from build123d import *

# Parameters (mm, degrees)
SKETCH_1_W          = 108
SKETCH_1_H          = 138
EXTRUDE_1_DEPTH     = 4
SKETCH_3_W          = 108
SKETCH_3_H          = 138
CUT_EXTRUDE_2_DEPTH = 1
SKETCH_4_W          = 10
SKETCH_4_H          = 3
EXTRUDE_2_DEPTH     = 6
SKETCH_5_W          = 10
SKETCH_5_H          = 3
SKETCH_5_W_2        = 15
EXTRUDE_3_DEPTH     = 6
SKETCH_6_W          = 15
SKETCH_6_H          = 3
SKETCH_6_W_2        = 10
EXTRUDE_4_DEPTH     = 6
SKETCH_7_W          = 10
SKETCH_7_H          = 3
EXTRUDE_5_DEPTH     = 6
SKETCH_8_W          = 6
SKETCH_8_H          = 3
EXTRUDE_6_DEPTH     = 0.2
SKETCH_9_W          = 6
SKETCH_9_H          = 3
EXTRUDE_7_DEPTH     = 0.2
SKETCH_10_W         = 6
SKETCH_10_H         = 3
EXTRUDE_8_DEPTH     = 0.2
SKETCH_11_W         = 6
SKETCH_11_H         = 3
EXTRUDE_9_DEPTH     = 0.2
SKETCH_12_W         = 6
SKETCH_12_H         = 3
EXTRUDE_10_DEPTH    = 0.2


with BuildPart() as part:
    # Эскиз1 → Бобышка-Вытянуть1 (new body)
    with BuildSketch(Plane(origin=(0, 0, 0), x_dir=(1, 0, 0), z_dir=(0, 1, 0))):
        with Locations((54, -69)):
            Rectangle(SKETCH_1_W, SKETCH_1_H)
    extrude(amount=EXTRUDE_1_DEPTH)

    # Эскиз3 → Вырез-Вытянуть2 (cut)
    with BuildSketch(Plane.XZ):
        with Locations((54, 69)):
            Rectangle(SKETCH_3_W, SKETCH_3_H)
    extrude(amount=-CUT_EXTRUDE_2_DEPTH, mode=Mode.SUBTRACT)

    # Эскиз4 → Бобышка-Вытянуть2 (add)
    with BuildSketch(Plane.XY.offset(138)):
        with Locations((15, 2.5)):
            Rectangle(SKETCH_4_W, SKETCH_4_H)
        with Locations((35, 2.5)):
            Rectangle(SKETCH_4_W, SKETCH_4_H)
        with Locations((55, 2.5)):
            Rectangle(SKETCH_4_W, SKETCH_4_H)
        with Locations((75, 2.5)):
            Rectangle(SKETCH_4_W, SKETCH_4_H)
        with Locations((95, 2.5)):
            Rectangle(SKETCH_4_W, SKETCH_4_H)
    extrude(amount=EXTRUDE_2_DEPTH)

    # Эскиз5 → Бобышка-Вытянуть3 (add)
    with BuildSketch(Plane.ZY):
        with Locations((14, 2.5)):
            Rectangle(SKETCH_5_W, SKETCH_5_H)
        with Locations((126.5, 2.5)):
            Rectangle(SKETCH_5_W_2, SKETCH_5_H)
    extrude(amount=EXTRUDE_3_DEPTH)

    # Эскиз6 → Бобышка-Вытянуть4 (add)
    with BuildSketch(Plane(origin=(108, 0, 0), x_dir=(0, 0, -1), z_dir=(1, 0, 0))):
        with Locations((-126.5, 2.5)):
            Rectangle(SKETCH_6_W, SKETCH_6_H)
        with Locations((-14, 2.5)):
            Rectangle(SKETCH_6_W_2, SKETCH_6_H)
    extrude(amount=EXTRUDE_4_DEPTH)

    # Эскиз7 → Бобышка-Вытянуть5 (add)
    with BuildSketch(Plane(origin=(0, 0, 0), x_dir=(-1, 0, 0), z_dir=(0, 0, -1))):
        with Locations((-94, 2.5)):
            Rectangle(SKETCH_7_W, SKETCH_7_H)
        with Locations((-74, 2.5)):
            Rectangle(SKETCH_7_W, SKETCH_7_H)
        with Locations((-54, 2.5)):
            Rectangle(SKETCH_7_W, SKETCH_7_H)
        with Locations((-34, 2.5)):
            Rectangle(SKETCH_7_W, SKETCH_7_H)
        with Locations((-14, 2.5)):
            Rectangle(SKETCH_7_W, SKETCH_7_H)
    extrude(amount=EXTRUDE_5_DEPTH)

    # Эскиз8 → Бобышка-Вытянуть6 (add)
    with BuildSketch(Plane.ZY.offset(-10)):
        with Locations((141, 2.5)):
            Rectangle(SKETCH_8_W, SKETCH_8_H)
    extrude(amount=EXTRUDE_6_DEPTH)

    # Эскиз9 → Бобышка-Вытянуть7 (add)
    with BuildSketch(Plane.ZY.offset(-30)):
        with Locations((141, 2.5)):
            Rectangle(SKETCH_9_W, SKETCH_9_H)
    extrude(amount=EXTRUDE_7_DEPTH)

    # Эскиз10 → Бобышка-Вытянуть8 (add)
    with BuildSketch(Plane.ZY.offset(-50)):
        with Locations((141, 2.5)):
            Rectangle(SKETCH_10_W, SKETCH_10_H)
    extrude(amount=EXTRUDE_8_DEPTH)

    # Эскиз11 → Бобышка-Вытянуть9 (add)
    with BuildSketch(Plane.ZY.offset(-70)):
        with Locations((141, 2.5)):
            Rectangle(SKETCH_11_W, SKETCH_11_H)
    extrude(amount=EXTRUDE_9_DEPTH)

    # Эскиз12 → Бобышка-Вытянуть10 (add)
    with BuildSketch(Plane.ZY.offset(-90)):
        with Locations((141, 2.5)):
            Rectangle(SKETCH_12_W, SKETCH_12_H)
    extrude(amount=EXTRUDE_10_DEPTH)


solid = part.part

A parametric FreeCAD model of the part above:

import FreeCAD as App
import Part
import Sketcher

V = App.Vector
Q = App.Units.Quantity


def add_polygon(sketch, points):
    """Adds a closed chain of lines whose ends are joined by coincident constraints."""
    first, n = sketch.GeometryCount, len(points)
    for a, b in zip(points, points[1:] + points[:1]):
        sketch.addGeometry(Part.LineSegment(App.Vector(*a, 0), App.Vector(*b, 0)), False)
    for i in range(n):
        sketch.addConstraint(Sketcher.Constraint("Coincident", first + i, 2, first + (i + 1) % n, 1))

doc = App.newDocument("Part")
body = doc.addObject("PartDesign::Body", "Body")

sketch1 = body.newObject("Sketcher::SketchObject", "Sketch")
sketch1.AttachmentSupport = (doc.getObject("XZ_Plane"), [""])
sketch1.MapMode = "FlatFace"
add_polygon(sketch1, [(0, 0), (0, 138), (108, 138), (108, 0)])
sketch1.addConstraint([
    Sketcher.Constraint("Vertical", 0),
    Sketcher.Constraint("Horizontal", 1),
    Sketcher.Constraint("Vertical", 2),
    Sketcher.Constraint("Horizontal", 3),
    Sketcher.Constraint("Coincident", 3, 2, -1, 1),
    Sketcher.Constraint("DistanceX", 1, 1, 1, 2, Q("108 mm")),
    Sketcher.Constraint("DistanceY", 0, 1, 0, 2, Q("138 mm")),
])
pad1 = body.newObject("PartDesign::Pad", "Pad")
pad1.Profile = sketch1
pad1.Length = 4
pad1.Reversed = True

sketch2 = body.newObject("Sketcher::SketchObject", "Sketch001")
sketch2.AttachmentSupport = (doc.getObject("XZ_Plane"), [""])
sketch2.MapMode = "FlatFace"
add_polygon(sketch2, [(0, 138), (0, 0), (108, 0), (108, 138)])
sketch2.addConstraint([
    Sketcher.Constraint("Vertical", 0),
    Sketcher.Constraint("Horizontal", 1),
    Sketcher.Constraint("Vertical", 2),
    Sketcher.Constraint("Horizontal", 3),
    Sketcher.Constraint("Coincident", 0, 2, -1, 1),
    Sketcher.Constraint("DistanceX", 1, 1, 1, 2, Q("108 mm")),
    Sketcher.Constraint("DistanceY", 0, 2, 0, 1, Q("138 mm")),
])
pocket1 = body.newObject("PartDesign::Pocket", "Pocket")
pocket1.Profile = sketch2
pocket1.Length = 1

sketch3 = body.newObject("Sketcher::SketchObject", "Sketch002")
sketch3.AttachmentSupport = (doc.getObject("XY_Plane"), [""])
sketch3.MapMode = "FlatFace"
sketch3.AttachmentOffset = App.Placement(V(0, 0, 138), App.Rotation())
add_polygon(sketch3, [(10, 4), (10, 1), (20, 1), (20, 4)])
add_polygon(sketch3, [(30, 4), (30, 1), (40, 1), (40, 4)])
add_polygon(sketch3, [(50, 4), (50, 1), (60, 1), (60, 4)])
add_polygon(sketch3, [(70, 4), (70, 1), (80, 1), (80, 4)])
add_polygon(sketch3, [(90, 4), (90, 1), (100, 1), (100, 4)])
sketch3.addConstraint([
    Sketcher.Constraint("Vertical", 0),
    Sketcher.Constraint("Horizontal", 1),
    Sketcher.Constraint("Vertical", 2),
    Sketcher.Constraint("Horizontal", 3),
    Sketcher.Constraint("Vertical", 4),
    Sketcher.Constraint("Horizontal", 5),
    Sketcher.Constraint("Vertical", 6),
    Sketcher.Constraint("Horizontal", 7),
    Sketcher.Constraint("Vertical", 8),
    Sketcher.Constraint("Horizontal", 9),
    Sketcher.Constraint("Vertical", 10),
    Sketcher.Constraint("Horizontal", 11),
    Sketcher.Constraint("Vertical", 12),
    Sketcher.Constraint("Horizontal", 13),
    Sketcher.Constraint("Vertical", 14),
    Sketcher.Constraint("Horizontal", 15),
    Sketcher.Constraint("Vertical", 16),
    Sketcher.Constraint("Horizontal", 17),
    Sketcher.Constraint("Vertical", 18),
    Sketcher.Constraint("Horizontal", 19),
    Sketcher.Constraint("Horizontal", 1, 2, 4, 2),
    Sketcher.Constraint("Horizontal", 3, 2, 6, 2),
    Sketcher.Constraint("Horizontal", 5, 2, 8, 2),
    Sketcher.Constraint("Horizontal", 7, 2, 10, 2),
    Sketcher.Constraint("Horizontal", 9, 2, 12, 2),
    Sketcher.Constraint("Horizontal", 11, 2, 14, 2),
    Sketcher.Constraint("Horizontal", 13, 2, 16, 2),
    Sketcher.Constraint("Horizontal", 15, 2, 18, 2),
    Sketcher.Constraint("Equal", 3, 5),
    Sketcher.Constraint("Equal", 7, 9),
    Sketcher.Constraint("Equal", 11, 13),
    Sketcher.Constraint("Equal", 15, 17),
    Sketcher.Constraint("DistanceX", 1, 1, 1, 2, Q("10 mm")),
    Sketcher.Constraint("DistanceY", 0, 2, 0, 1, Q("3 mm")),
    Sketcher.Constraint("DistanceX", -1, 1, 0, 2, Q("10 mm")),
    Sketcher.Constraint("DistanceY", -1, 1, 0, 2, Q("1 mm")),
    Sketcher.Constraint("DistanceX", -1, 1, 4, 2, Q("30 mm")),
    Sketcher.Constraint("DistanceX", -1, 1, 8, 2, Q("50 mm")),
    Sketcher.Constraint("DistanceX", -1, 1, 12, 2, Q("70 mm")),
    Sketcher.Constraint("DistanceX", -1, 1, 16, 2, Q("90 mm")),
])
pad2 = body.newObject("PartDesign::Pad", "Pad001")
pad2.Profile = sketch3
pad2.Length = 6

sketch4 = body.newObject("Sketcher::SketchObject", "Sketch003")
sketch4.AttachmentSupport = (doc.getObject("YZ_Plane"), [""])
sketch4.MapMode = "FlatFace"
add_polygon(sketch4, [(4, 9), (1, 9), (1, 19), (4, 19)])
add_polygon(sketch4, [(4, 119), (1, 119), (1, 134), (4, 134)])
sketch4.addConstraint([
    Sketcher.Constraint("Horizontal", 0),
    Sketcher.Constraint("Vertical", 1),
    Sketcher.Constraint("Horizontal", 2),
    Sketcher.Constraint("Vertical", 3),
    Sketcher.Constraint("Horizontal", 4),
    Sketcher.Constraint("Vertical", 5),
    Sketcher.Constraint("Horizontal", 6),
    Sketcher.Constraint("Vertical", 7),
    Sketcher.Constraint("Vertical", 1, 2, 4, 2),
    Sketcher.Constraint("Vertical", 3, 2, 6, 2),
    Sketcher.Constraint("DistanceX", 0, 2, 0, 1, Q("3 mm")),
    Sketcher.Constraint("DistanceY", 1, 1, 1, 2, Q("10 mm")),
    Sketcher.Constraint("DistanceY", 5, 1, 5, 2, Q("15 mm")),
    Sketcher.Constraint("DistanceX", -1, 1, 0, 2, Q("1 mm")),
    Sketcher.Constraint("DistanceY", -1, 1, 0, 2, Q("9 mm")),
    Sketcher.Constraint("DistanceY", -1, 1, 4, 2, Q("119 mm")),
])
pad3 = body.newObject("PartDesign::Pad", "Pad002")
pad3.Profile = sketch4
pad3.Length = 6
pad3.Reversed = True

sketch5 = body.newObject("Sketcher::SketchObject", "Sketch004")
sketch5.AttachmentSupport = (doc.getObject("YZ_Plane"), [""])
sketch5.MapMode = "FlatFace"
sketch5.AttachmentOffset = App.Placement(V(0, 0, 108), App.Rotation())
add_polygon(sketch5, [(4, 134), (1, 134), (1, 119), (4, 119)])
add_polygon(sketch5, [(4, 19), (1, 19), (1, 9), (4, 9)])
sketch5.addConstraint([
    Sketcher.Constraint("Horizontal", 0),
    Sketcher.Constraint("Vertical", 1),
    Sketcher.Constraint("Horizontal", 2),
    Sketcher.Constraint("Vertical", 3),
    Sketcher.Constraint("Horizontal", 4),
    Sketcher.Constraint("Vertical", 5),
    Sketcher.Constraint("Horizontal", 6),
    Sketcher.Constraint("Vertical", 7),
    Sketcher.Constraint("Vertical", 1, 2, 4, 2),
    Sketcher.Constraint("Vertical", 3, 2, 6, 2),
    Sketcher.Constraint("DistanceX", 0, 2, 0, 1, Q("3 mm")),
    Sketcher.Constraint("DistanceY", 1, 2, 1, 1, Q("15 mm")),
    Sketcher.Constraint("DistanceY", 5, 2, 5, 1, Q("10 mm")),
    Sketcher.Constraint("DistanceX", -1, 1, 0, 2, Q("1 mm")),
    Sketcher.Constraint("DistanceY", -1, 1, 0, 2, Q("134 mm")),
    Sketcher.Constraint("DistanceY", -1, 1, 4, 2, Q("19 mm")),
])
pad4 = body.newObject("PartDesign::Pad", "Pad003")
pad4.Profile = sketch5
pad4.Length = 6

sketch6 = body.newObject("Sketcher::SketchObject", "Sketch005")
sketch6.AttachmentSupport = (doc.getObject("XY_Plane"), [""])
sketch6.MapMode = "FlatFace"
add_polygon(sketch6, [(99, 4), (99, 1), (89, 1), (89, 4)])
add_polygon(sketch6, [(79, 4), (79, 1), (69, 1), (69, 4)])
add_polygon(sketch6, [(59, 4), (59, 1), (49, 1), (49, 4)])
add_polygon(sketch6, [(39, 4), (39, 1), (29, 1), (29, 4)])
add_polygon(sketch6, [(19, 4), (19, 1), (9, 1), (9, 4)])
sketch6.addConstraint([
    Sketcher.Constraint("Vertical", 0),
    Sketcher.Constraint("Horizontal", 1),
    Sketcher.Constraint("Vertical", 2),
    Sketcher.Constraint("Horizontal", 3),
    Sketcher.Constraint("Vertical", 4),
    Sketcher.Constraint("Horizontal", 5),
    Sketcher.Constraint("Vertical", 6),
    Sketcher.Constraint("Horizontal", 7),
    Sketcher.Constraint("Vertical", 8),
    Sketcher.Constraint("Horizontal", 9),
    Sketcher.Constraint("Vertical", 10),
    Sketcher.Constraint("Horizontal", 11),
    Sketcher.Constraint("Vertical", 12),
    Sketcher.Constraint("Horizontal", 13),
    Sketcher.Constraint("Vertical", 14),
    Sketcher.Constraint("Horizontal", 15),
    Sketcher.Constraint("Vertical", 16),
    Sketcher.Constraint("Horizontal", 17),
    Sketcher.Constraint("Vertical", 18),
    Sketcher.Constraint("Horizontal", 19),
    Sketcher.Constraint("Horizontal", 1, 2, 4, 2),
    Sketcher.Constraint("Horizontal", 3, 2, 6, 2),
    Sketcher.Constraint("Horizontal", 5, 2, 8, 2),
    Sketcher.Constraint("Horizontal", 7, 2, 10, 2),
    Sketcher.Constraint("Horizontal", 9, 2, 12, 2),
    Sketcher.Constraint("Horizontal", 11, 2, 14, 2),
    Sketcher.Constraint("Horizontal", 13, 2, 16, 2),
    Sketcher.Constraint("Horizontal", 15, 2, 18, 2),
    Sketcher.Constraint("Equal", 3, 5),
    Sketcher.Constraint("Equal", 7, 9),
    Sketcher.Constraint("Equal", 11, 13),
    Sketcher.Constraint("Equal", 15, 17),
    Sketcher.Constraint("DistanceX", 1, 2, 1, 1, Q("10 mm")),
    Sketcher.Constraint("DistanceY", 0, 2, 0, 1, Q("3 mm")),
    Sketcher.Constraint("DistanceX", -1, 1, 0, 2, Q("99 mm")),
    Sketcher.Constraint("DistanceY", -1, 1, 0, 2, Q("1 mm")),
    Sketcher.Constraint("DistanceX", -1, 1, 4, 2, Q("79 mm")),
    Sketcher.Constraint("DistanceX", -1, 1, 8, 2, Q("59 mm")),
    Sketcher.Constraint("DistanceX", -1, 1, 12, 2, Q("39 mm")),
    Sketcher.Constraint("DistanceX", -1, 1, 16, 2, Q("19 mm")),
])
pad5 = body.newObject("PartDesign::Pad", "Pad004")
pad5.Profile = sketch6
pad5.Length = 6
pad5.Reversed = True

sketch7 = body.newObject("Sketcher::SketchObject", "Sketch006")
sketch7.AttachmentSupport = (doc.getObject("YZ_Plane"), [""])
sketch7.MapMode = "FlatFace"
sketch7.AttachmentOffset = App.Placement(V(0, 0, 10), App.Rotation())
add_polygon(sketch7, [(4, 138), (1, 138), (1, 144), (4, 144)])
sketch7.addConstraint([
    Sketcher.Constraint("Horizontal", 0),
    Sketcher.Constraint("Vertical", 1),
    Sketcher.Constraint("Horizontal", 2),
    Sketcher.Constraint("Vertical", 3),
    Sketcher.Constraint("DistanceX", 0, 2, 0, 1, Q("3 mm")),
    Sketcher.Constraint("DistanceY", 1, 1, 1, 2, Q("6 mm")),
    Sketcher.Constraint("DistanceX", -1, 1, 0, 2, Q("1 mm")),
    Sketcher.Constraint("DistanceY", -1, 1, 0, 2, Q("138 mm")),
])
pad6 = body.newObject("PartDesign::Pad", "Pad005")
pad6.Profile = sketch7
pad6.Length = 0.2
pad6.Reversed = True

sketch8 = body.newObject("Sketcher::SketchObject", "Sketch007")
sketch8.AttachmentSupport = (doc.getObject("YZ_Plane"), [""])
sketch8.MapMode = "FlatFace"
sketch8.AttachmentOffset = App.Placement(V(0, 0, 30), App.Rotation())
add_polygon(sketch8, [(4, 138), (1, 138), (1, 144), (4, 144)])
sketch8.addConstraint([
    Sketcher.Constraint("Horizontal", 0),
    Sketcher.Constraint("Vertical", 1),
    Sketcher.Constraint("Horizontal", 2),
    Sketcher.Constraint("Vertical", 3),
    Sketcher.Constraint("DistanceX", 0, 2, 0, 1, Q("3 mm")),
    Sketcher.Constraint("DistanceY", 1, 1, 1, 2, Q("6 mm")),
    Sketcher.Constraint("DistanceX", -1, 1, 0, 2, Q("1 mm")),
    Sketcher.Constraint("DistanceY", -1, 1, 0, 2, Q("138 mm")),
])
pad7 = body.newObject("PartDesign::Pad", "Pad006")
pad7.Profile = sketch8
pad7.Length = 0.2
pad7.Reversed = True

sketch9 = body.newObject("Sketcher::SketchObject", "Sketch008")
sketch9.AttachmentSupport = (doc.getObject("YZ_Plane"), [""])
sketch9.MapMode = "FlatFace"
sketch9.AttachmentOffset = App.Placement(V(0, 0, 50), App.Rotation())
add_polygon(sketch9, [(4, 138), (1, 138), (1, 144), (4, 144)])
sketch9.addConstraint([
    Sketcher.Constraint("Horizontal", 0),
    Sketcher.Constraint("Vertical", 1),
    Sketcher.Constraint("Horizontal", 2),
    Sketcher.Constraint("Vertical", 3),
    Sketcher.Constraint("DistanceX", 0, 2, 0, 1, Q("3 mm")),
    Sketcher.Constraint("DistanceY", 1, 1, 1, 2, Q("6 mm")),
    Sketcher.Constraint("DistanceX", -1, 1, 0, 2, Q("1 mm")),
    Sketcher.Constraint("DistanceY", -1, 1, 0, 2, Q("138 mm")),
])
pad8 = body.newObject("PartDesign::Pad", "Pad007")
pad8.Profile = sketch9
pad8.Length = 0.2
pad8.Reversed = True

sketch10 = body.newObject("Sketcher::SketchObject", "Sketch009")
sketch10.AttachmentSupport = (doc.getObject("YZ_Plane"), [""])
sketch10.MapMode = "FlatFace"
sketch10.AttachmentOffset = App.Placement(V(0, 0, 70), App.Rotation())
add_polygon(sketch10, [(4, 138), (1, 138), (1, 144), (4, 144)])
sketch10.addConstraint([
    Sketcher.Constraint("Horizontal", 0),
    Sketcher.Constraint("Vertical", 1),
    Sketcher.Constraint("Horizontal", 2),
    Sketcher.Constraint("Vertical", 3),
    Sketcher.Constraint("DistanceX", 0, 2, 0, 1, Q("3 mm")),
    Sketcher.Constraint("DistanceY", 1, 1, 1, 2, Q("6 mm")),
    Sketcher.Constraint("DistanceX", -1, 1, 0, 2, Q("1 mm")),
    Sketcher.Constraint("DistanceY", -1, 1, 0, 2, Q("138 mm")),
])
pad9 = body.newObject("PartDesign::Pad", "Pad008")
pad9.Profile = sketch10
pad9.Length = 0.2
pad9.Reversed = True

sketch11 = body.newObject("Sketcher::SketchObject", "Sketch010")
sketch11.AttachmentSupport = (doc.getObject("YZ_Plane"), [""])
sketch11.MapMode = "FlatFace"
sketch11.AttachmentOffset = App.Placement(V(0, 0, 90), App.Rotation())
add_polygon(sketch11, [(4, 138), (1, 138), (1, 144), (4, 144)])
sketch11.addConstraint([
    Sketcher.Constraint("Horizontal", 0),
    Sketcher.Constraint("Vertical", 1),
    Sketcher.Constraint("Horizontal", 2),
    Sketcher.Constraint("Vertical", 3),
    Sketcher.Constraint("DistanceX", 0, 2, 0, 1, Q("3 mm")),
    Sketcher.Constraint("DistanceY", 1, 1, 1, 2, Q("6 mm")),
    Sketcher.Constraint("DistanceX", -1, 1, 0, 2, Q("1 mm")),
    Sketcher.Constraint("DistanceY", -1, 1, 0, 2, Q("138 mm")),
])
pad10 = body.newObject("PartDesign::Pad", "Pad009")
pad10.Profile = sketch11
pad10.Length = 0.2
pad10.Reversed = True

doc.recompute()
